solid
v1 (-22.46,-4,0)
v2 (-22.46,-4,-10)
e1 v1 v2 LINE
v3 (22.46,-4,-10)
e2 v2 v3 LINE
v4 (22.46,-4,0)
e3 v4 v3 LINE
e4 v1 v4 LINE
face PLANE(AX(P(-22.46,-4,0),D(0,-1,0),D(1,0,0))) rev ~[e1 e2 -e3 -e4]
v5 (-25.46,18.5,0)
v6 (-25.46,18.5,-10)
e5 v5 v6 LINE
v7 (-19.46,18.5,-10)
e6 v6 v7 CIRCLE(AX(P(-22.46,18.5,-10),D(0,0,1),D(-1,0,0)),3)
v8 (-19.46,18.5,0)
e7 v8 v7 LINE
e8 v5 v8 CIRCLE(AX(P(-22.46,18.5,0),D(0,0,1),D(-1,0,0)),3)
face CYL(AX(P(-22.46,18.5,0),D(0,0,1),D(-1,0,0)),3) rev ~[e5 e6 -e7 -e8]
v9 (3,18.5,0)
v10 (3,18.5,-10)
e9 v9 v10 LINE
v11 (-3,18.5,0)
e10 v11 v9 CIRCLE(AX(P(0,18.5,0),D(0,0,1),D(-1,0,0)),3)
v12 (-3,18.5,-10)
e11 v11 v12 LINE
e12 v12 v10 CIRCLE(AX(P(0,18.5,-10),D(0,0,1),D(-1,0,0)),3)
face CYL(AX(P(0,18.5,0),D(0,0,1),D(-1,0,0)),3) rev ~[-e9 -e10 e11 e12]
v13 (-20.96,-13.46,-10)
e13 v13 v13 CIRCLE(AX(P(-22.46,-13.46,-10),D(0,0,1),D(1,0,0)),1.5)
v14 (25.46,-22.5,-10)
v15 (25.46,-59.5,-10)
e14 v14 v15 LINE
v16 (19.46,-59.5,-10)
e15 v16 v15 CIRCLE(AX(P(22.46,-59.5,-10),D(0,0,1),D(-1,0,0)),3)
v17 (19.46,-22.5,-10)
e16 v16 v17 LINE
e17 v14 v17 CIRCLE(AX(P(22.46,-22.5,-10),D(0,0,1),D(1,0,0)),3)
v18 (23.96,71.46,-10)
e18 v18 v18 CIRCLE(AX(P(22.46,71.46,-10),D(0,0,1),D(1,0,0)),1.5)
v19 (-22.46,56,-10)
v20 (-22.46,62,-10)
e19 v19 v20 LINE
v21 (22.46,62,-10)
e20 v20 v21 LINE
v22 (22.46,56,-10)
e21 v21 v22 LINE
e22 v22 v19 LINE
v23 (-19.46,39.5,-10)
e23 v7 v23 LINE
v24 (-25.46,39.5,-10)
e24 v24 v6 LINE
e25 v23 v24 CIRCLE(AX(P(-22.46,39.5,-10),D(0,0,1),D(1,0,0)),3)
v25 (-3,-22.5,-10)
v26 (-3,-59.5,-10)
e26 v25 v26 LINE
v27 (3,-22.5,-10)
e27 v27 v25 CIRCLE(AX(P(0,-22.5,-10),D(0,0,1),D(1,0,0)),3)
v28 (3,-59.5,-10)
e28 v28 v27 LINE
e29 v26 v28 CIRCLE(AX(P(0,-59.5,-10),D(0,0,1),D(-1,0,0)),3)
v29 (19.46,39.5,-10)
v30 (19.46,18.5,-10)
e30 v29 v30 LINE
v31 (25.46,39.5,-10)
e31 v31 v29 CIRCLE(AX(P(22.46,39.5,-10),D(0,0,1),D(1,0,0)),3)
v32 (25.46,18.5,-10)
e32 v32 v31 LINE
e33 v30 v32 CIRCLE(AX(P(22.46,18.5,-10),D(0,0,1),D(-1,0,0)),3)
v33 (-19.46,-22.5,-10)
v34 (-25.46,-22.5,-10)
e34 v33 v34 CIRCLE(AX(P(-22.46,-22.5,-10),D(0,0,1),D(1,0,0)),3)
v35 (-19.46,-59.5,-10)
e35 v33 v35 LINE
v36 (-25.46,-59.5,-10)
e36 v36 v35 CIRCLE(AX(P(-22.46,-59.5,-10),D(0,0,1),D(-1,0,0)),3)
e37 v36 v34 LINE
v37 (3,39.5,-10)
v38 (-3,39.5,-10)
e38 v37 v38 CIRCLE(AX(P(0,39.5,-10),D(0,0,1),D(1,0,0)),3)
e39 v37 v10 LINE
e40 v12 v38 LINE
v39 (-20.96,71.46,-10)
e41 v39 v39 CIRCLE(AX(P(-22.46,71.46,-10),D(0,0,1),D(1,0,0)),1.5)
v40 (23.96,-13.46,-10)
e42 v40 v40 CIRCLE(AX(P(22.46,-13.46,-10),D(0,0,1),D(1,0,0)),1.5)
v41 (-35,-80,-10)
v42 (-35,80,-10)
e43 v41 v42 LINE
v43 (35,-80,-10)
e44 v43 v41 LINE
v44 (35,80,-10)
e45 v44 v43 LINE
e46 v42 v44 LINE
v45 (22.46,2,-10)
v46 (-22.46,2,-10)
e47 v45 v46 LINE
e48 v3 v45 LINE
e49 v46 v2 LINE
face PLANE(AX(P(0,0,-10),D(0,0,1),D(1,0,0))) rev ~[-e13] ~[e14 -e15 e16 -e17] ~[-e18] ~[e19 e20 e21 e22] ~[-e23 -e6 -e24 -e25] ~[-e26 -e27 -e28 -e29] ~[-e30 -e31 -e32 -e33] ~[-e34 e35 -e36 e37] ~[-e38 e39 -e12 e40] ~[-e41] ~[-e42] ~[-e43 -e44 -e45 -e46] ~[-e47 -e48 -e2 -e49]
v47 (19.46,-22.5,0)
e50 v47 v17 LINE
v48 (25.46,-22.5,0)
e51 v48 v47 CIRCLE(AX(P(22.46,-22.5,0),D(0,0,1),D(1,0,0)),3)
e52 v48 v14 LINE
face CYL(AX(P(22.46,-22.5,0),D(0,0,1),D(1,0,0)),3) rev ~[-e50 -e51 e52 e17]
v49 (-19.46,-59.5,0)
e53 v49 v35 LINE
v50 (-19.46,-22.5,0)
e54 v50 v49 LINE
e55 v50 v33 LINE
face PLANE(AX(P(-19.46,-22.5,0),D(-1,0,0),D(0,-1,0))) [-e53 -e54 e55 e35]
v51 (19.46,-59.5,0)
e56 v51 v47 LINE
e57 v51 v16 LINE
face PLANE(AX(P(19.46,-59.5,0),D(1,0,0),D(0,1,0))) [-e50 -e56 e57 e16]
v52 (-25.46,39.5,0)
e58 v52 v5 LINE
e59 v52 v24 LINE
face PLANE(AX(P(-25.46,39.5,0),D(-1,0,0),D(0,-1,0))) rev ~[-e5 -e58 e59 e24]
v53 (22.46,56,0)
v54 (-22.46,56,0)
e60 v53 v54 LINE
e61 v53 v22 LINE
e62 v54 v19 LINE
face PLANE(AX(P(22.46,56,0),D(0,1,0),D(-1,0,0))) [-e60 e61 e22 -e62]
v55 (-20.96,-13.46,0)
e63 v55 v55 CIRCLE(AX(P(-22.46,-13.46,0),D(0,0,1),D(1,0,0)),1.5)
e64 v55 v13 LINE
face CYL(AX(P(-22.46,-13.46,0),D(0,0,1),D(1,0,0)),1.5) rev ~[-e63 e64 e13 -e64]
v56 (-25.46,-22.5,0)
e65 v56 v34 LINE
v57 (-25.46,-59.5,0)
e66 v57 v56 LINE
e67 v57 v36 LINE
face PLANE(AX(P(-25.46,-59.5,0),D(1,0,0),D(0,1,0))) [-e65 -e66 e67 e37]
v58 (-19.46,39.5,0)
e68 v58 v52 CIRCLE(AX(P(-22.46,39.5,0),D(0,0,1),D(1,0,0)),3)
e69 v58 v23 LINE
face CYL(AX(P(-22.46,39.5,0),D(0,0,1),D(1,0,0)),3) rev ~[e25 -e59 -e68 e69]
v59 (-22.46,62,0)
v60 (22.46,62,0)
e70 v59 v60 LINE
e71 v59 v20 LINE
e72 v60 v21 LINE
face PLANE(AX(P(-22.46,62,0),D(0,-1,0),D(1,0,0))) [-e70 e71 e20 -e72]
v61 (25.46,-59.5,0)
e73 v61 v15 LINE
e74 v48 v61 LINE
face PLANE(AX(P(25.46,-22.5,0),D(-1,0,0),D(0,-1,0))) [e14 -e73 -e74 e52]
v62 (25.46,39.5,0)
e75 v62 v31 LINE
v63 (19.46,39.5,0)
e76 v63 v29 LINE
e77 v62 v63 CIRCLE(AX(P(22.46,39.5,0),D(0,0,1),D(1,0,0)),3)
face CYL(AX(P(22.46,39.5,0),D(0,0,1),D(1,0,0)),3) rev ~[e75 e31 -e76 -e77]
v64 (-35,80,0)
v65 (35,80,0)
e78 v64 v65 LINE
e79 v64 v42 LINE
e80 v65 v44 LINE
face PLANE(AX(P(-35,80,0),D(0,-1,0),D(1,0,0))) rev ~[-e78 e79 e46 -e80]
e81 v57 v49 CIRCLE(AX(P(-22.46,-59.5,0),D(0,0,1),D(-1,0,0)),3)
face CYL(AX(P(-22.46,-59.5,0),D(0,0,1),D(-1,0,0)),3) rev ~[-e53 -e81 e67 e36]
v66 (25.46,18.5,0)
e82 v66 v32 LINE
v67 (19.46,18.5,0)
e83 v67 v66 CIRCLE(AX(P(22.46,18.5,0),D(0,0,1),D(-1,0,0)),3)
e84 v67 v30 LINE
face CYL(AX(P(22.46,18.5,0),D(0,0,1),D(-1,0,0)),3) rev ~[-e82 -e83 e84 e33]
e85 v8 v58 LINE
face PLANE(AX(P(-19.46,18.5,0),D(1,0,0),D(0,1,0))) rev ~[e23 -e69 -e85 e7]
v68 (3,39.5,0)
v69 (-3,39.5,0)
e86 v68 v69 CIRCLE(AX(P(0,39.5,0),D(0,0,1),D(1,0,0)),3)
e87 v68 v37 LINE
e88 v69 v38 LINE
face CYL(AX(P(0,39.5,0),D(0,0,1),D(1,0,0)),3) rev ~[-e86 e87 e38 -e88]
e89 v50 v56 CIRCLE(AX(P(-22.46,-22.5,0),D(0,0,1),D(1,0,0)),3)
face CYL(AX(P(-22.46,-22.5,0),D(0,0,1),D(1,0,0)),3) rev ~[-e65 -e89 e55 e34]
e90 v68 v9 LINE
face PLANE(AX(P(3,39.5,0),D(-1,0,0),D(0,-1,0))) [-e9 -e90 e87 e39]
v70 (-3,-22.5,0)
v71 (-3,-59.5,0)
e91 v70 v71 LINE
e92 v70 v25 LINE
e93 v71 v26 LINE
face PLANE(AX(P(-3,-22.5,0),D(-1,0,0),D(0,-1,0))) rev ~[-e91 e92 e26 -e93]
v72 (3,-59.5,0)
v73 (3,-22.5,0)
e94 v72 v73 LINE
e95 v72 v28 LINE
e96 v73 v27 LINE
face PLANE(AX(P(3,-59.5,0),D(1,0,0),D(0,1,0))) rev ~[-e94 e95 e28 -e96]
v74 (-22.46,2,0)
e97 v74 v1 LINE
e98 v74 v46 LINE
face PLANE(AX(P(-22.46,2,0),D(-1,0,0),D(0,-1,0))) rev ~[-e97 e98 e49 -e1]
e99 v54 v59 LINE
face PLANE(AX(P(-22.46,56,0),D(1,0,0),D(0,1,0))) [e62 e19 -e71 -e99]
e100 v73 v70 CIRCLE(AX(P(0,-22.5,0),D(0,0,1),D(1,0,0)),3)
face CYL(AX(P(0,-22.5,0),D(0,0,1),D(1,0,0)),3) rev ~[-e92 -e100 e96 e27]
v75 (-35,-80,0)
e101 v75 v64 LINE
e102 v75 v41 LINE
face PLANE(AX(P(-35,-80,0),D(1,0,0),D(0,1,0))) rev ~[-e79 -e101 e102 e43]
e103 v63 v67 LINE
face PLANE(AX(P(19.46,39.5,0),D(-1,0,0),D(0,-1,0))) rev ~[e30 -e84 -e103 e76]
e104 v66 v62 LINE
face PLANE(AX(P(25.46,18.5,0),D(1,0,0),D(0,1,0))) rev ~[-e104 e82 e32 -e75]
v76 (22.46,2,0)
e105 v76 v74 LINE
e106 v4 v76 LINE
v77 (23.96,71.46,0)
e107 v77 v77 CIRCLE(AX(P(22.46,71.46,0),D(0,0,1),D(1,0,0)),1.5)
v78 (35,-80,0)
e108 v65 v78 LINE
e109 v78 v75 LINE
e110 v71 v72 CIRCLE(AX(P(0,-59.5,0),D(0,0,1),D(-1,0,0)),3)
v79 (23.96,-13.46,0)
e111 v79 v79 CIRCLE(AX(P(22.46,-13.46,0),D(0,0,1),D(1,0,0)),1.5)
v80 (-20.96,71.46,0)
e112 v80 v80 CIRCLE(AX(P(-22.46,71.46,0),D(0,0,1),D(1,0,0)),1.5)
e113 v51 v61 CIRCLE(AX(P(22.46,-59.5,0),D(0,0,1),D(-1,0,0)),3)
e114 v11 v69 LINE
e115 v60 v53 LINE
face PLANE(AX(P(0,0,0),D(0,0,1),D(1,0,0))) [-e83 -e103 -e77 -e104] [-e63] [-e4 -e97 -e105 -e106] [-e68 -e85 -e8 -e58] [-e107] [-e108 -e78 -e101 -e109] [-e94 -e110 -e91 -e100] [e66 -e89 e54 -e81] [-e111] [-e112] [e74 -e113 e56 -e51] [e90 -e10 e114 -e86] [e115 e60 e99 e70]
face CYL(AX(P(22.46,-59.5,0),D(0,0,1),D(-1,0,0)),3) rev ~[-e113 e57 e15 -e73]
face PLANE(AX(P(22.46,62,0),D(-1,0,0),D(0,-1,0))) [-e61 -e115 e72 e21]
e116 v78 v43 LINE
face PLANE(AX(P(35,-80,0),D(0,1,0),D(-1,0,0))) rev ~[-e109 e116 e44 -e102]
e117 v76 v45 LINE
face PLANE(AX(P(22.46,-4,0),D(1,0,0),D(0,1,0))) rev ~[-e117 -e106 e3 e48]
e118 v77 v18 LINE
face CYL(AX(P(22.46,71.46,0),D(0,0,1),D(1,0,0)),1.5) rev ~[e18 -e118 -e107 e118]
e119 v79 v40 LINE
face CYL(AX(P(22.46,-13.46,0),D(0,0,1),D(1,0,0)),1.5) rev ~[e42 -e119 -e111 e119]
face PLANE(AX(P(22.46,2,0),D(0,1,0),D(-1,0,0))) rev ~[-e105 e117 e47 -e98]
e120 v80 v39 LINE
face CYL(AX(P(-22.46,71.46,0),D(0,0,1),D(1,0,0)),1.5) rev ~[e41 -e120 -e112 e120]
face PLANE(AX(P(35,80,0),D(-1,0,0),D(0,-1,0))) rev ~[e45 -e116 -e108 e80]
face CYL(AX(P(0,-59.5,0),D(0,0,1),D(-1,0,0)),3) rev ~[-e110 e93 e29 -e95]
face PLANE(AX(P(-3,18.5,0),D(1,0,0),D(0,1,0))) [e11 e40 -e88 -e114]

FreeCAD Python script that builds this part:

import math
import FreeCAD as App
import Part
import Sketcher

V = App.Vector

doc = App.newDocument("Part")
body = doc.addObject("PartDesign::Body", "Body")

sketch1 = body.newObject("Sketcher::SketchObject", "Sketch")
sketch1.AttachmentSupport = (doc.getObject("XY_Plane"), [""])
sketch1.MapMode = "FlatFace"
sketch1.addGeometry([
    Part.LineSegment(V(35, 80, 0), V(-35, 80, 0)),
    Part.LineSegment(V(-35, 80, 0), V(-35, -80, 0)),
    Part.LineSegment(V(-35, -80, 0), V(35, -80, 0)),
    Part.LineSegment(V(35, -80, 0), V(35, 80, 0)),
    Part.ArcOfCircle(Part.Circle(V(-22.5, -22.5, 0), V(0, 0, 1), 3), math.radians(0), math.radians(180)),
    Part.LineSegment(V(-19.5, -22.5, 0), V(-19.5, -59.5, 0)),
    Part.ArcOfCircle(Part.Circle(V(-22.5, -59.5, 0), V(0, 0, 1), 3), math.radians(180), math.radians(360)),
    Part.LineSegment(V(-25.5, -59.5, 0), V(-25.5, -22.5, 0)),
    Part.Circle(V(-22.5, -13.5, 0), V(0, 0, 1), 1.5),
    Part.LineSegment(V(-3, -59.5, 0), V(-3, -22.5, 0)),
    Part.ArcOfCircle(Part.Circle(V(0, -22.5, 0), V(0, 0, 1), 3), math.radians(0), math.radians(180)),
    Part.LineSegment(V(3, -22.5, 0), V(3, -59.5, 0)),
    Part.ArcOfCircle(Part.Circle(V(0, -59.5, 0), V(0, 0, 1), 3), math.radians(180), math.radians(360)),
    Part.ArcOfCircle(Part.Circle(V(22.5, -22.5, 0), V(0, 0, 1), 3), math.radians(0), math.radians(180)),
    Part.LineSegment(V(25.5, -22.5, 0), V(25.5, -59.5, 0)),
    Part.ArcOfCircle(Part.Circle(V(22.5, -59.5, 0), V(0, 0, 1), 3), math.radians(180), math.radians(360)),
    Part.LineSegment(V(19.5, -59.5, 0), V(19.5, -22.5, 0)),
    Part.LineSegment(V(22.5, -4, 0), V(-22.5, -4, 0)),
    Part.LineSegment(V(-22.5, -4, 0), V(-22.5, 2, 0)),
    Part.LineSegment(V(-22.5, 2, 0), V(22.5, 2, 0)),
    Part.LineSegment(V(22.5, 2, 0), V(22.5, -4, 0)),
    Part.Circle(V(22.5, -13.5, 0), V(0, 0, 1), 1.5),
    Part.LineSegment(V(-19.5, 39.5, 0), V(-19.5, 18.5, 0)),
    Part.ArcOfCircle(Part.Circle(V(-22.5, 18.5, 0), V(0, 0, 1), 3), math.radians(180), math.radians(360)),
    Part.LineSegment(V(-25.5, 18.5, 0), V(-25.5, 39.5, 0)),
    Part.ArcOfCircle(Part.Circle(V(-22.5, 39.5, 0), V(0, 0, 1), 3), math.radians(0), math.radians(180)),
    Part.Circle(V(-22.5, 71.5, 0), V(0, 0, 1), 1.5),
    Part.ArcOfCircle(Part.Circle(V(0, 18.5, 0), V(0, 0, 1), 3), math.radians(180), math.radians(360)),
    Part.LineSegment(V(-3, 18.5, 0), V(-3, 39.5, 0)),
    Part.ArcOfCircle(Part.Circle(V(0, 39.5, 0), V(0, 0, 1), 3), math.radians(0), math.radians(180)),
    Part.LineSegment(V(3, 39.5, 0), V(3, 18.5, 0)),
    Part.LineSegment(V(25.5, 39.5, 0), V(25.5, 18.5, 0)),
    Part.ArcOfCircle(Part.Circle(V(22.5, 18.5, 0), V(0, 0, 1), 3), math.radians(180), math.radians(360)),
    Part.LineSegment(V(19.5, 18.5, 0), V(19.5, 39.5, 0)),
    Part.ArcOfCircle(Part.Circle(V(22.5, 39.5, 0), V(0, 0, 1), 3), math.radians(0), math.radians(180)),
    Part.LineSegment(V(-22.5, 56, 0), V(-22.5, 62, 0)),
    Part.LineSegment(V(-22.5, 62, 0), V(22.5, 62, 0)),
    Part.LineSegment(V(22.5, 62, 0), V(22.5, 56, 0)),
    Part.LineSegment(V(22.5, 56, 0), V(-22.5, 56, 0)),
    Part.Circle(V(22.5, 71.5, 0), V(0, 0, 1), 1.5),
], False)
sketch1.addConstraint([
    Sketcher.Constraint("Coincident", 0, 2, 1, 1),
    Sketcher.Constraint("Coincident", 1, 2, 2, 1),
    Sketcher.Constraint("Coincident", 2, 2, 3, 1),
    Sketcher.Constraint("Coincident", 3, 2, 0, 1),
    Sketcher.Constraint("Tangent", 4, 1, 5, 1),
    Sketcher.Constraint("Tangent", 5, 2, 6, 2),
    Sketcher.Constraint("Tangent", 6, 1, 7, 1),
    Sketcher.Constraint("Tangent", 7, 2, 4, 2),
    Sketcher.Constraint("Tangent", 9, 2, 10, 2),
    Sketcher.Constraint("Tangent", 10, 1, 11, 1),
    Sketcher.Constraint("Tangent", 11, 2, 12, 2),
    Sketcher.Constraint("Tangent", 12, 1, 9, 1),
    Sketcher.Constraint("Tangent", 13, 1, 14, 1),
    Sketcher.Constraint("Tangent", 14, 2, 15, 2),
    Sketcher.Constraint("Tangent", 15, 1, 16, 1),
    Sketcher.Constraint("Tangent", 16, 2, 13, 2),
    Sketcher.Constraint("Coincident", 17, 2, 18, 1),
    Sketcher.Constraint("Coincident", 18, 2, 19, 1),
    Sketcher.Constraint("Coincident", 19, 2, 20, 1),
    Sketcher.Constraint("Coincident", 20, 2, 17, 1),
    Sketcher.Constraint("Tangent", 22, 2, 23, 2),
    Sketcher.Constraint("Tangent", 23, 1, 24, 1),
    Sketcher.Constraint("Tangent", 24, 2, 25, 2),
    Sketcher.Constraint("Tangent", 25, 1, 22, 1),
    Sketcher.Constraint("Tangent", 27, 1, 28, 1),
    Sketcher.Constraint("Tangent", 28, 2, 29, 2),
    Sketcher.Constraint("Tangent", 29, 1, 30, 1),
    Sketcher.Constraint("Tangent", 30, 2, 27, 2),
    Sketcher.Constraint("Tangent", 31, 2, 32, 2),
    Sketcher.Constraint("Tangent", 32, 1, 33, 1),
    Sketcher.Constraint("Tangent", 33, 2, 34, 2),
    Sketcher.Constraint("Tangent", 34, 1, 31, 1),
    Sketcher.Constraint("Coincident", 35, 2, 36, 1),
    Sketcher.Constraint("Coincident", 36, 2, 37, 1),
    Sketcher.Constraint("Coincident", 37, 2, 38, 1),
    Sketcher.Constraint("Coincident", 38, 2, 35, 1),
    Sketcher.Constraint("Horizontal", 0),
    Sketcher.Constraint("Vertical", 1),
    Sketcher.Constraint("Horizontal", 2),
    Sketcher.Constraint("Vertical", 3),
    Sketcher.Constraint("Vertical", 5),
    Sketcher.Constraint("Vertical", 7),
    Sketcher.Constraint("Vertical", 9),
    Sketcher.Constraint("Vertical", 11),
    Sketcher.Constraint("Vertical", 14),
    Sketcher.Constraint("Vertical", 16),
    Sketcher.Constraint("Horizontal", 17),
    Sketcher.Constraint("Vertical", 18),
    Sketcher.Constraint("Horizontal", 19),
    Sketcher.Constraint("Vertical", 20),
    Sketcher.Constraint("Vertical", 22),
    Sketcher.Constraint("Vertical", 24),
    Sketcher.Constraint("Vertical", 28),
    Sketcher.Constraint("Vertical", 30),
    Sketcher.Constraint("Vertical", 31),
    Sketcher.Constraint("Vertical", 33),
    Sketcher.Constraint("Vertical", 35),
    Sketcher.Constraint("Horizontal", 36),
    Sketcher.Constraint("Vertical", 37),
    Sketcher.Constraint("Horizontal", 38),
    Sketcher.Constraint("Equal", 6, 10),
    Sketcher.Constraint("Equal", 12, 13),
    Sketcher.Constraint("Equal", 8, 21),
    Sketcher.Constraint("Equal", 15, 23),
    Sketcher.Constraint("Equal", 21, 26),
    Sketcher.Constraint("Equal", 25, 27),
    Sketcher.Constraint("Equal", 29, 32),
    Sketcher.Constraint("Equal", 26, 39),
    Sketcher.Constraint("Symmetric", 0, 2, 2, 2, -1, 1),
    Sketcher.Constraint("Symmetric", 4, 3, 13, 3, -2),
    Sketcher.Constraint("Symmetric", 8, 3, 21, 3, -2),
    Sketcher.Constraint("Symmetric", 23, 3, 32, 3, -2),
    Sketcher.Constraint("Symmetric", 26, 3, 39, 3, -2),
    Sketcher.Constraint("PointOnObject", 10, 3, -2),
    Sketcher.Constraint("PointOnObject", 27, 3, -2),
    Sketcher.Constraint("Horizontal", 4, 3, 10, 3),
    Sketcher.Constraint("Horizontal", 6, 3, 12, 3),
    Sketcher.Constraint("Horizontal", 12, 3, 15, 3),
    Sketcher.Constraint("Horizontal", 23, 3, 27, 3),
    Sketcher.Constraint("Horizontal", 25, 3, 29, 3),
    Sketcher.Constraint("Horizontal", 29, 3, 34, 3),
    Sketcher.Constraint("Vertical", 6, 3, 8, 3),
    Sketcher.Constraint("Vertical", 8, 3, 23, 3),
    Sketcher.Constraint("Vertical", 25, 3, 26, 3),
    Sketcher.Constraint("Vertical", 26, 3, 17, 2),
    Sketcher.Constraint("Vertical", 39, 3, 19, 2),
    Sketcher.Constraint("Vertical", 18, 2, 35, 2),
    Sketcher.Constraint("Vertical", 20, 2, 36, 2),
    Sketcher.Constraint("Equal", 20, 35),
    Sketcher.Constraint("Diameter", 8, 3.0),
    Sketcher.Constraint("Radius", 4, 3.0),
    Sketcher.Constraint("DistanceX", 0, 2, 0, 1, 70.0),
    Sketcher.Constraint("DistanceY", 1, 2, 1, 1, 160.0),
    Sketcher.Constraint("DistanceY", 5, 2, 5, 1, 37.0),
    Sketcher.Constraint("DistanceY", 18, 1, 18, 2, 6.0),
    Sketcher.Constraint("DistanceX", 17, 2, 17, 1, 44.92),
    Sketcher.Constraint("DistanceY", 4, 3, -1, 1, 22.5),
    Sketcher.Constraint("DistanceY", 17, 2, 23, 3, 22.5),
    Sketcher.Constraint("DistanceY", 25, 3, 35, 2, 22.5),
    Sketcher.Constraint("DistanceY", 22, 2, 22, 1, 21.0),
    Sketcher.Constraint("DistanceY", 8, 3, 23, 3, 31.96),
    Sketcher.Constraint("DistanceY", 25, 3, 26, 3, 31.96),
    Sketcher.Constraint("DistanceY", 26, 3, 0, 2, 8.54),
])
pad1 = body.newObject("PartDesign::Pad", "Pad")
pad1.Profile = sketch1
pad1.Length = 10
pad1.Reversed = True

doc.recompute()
